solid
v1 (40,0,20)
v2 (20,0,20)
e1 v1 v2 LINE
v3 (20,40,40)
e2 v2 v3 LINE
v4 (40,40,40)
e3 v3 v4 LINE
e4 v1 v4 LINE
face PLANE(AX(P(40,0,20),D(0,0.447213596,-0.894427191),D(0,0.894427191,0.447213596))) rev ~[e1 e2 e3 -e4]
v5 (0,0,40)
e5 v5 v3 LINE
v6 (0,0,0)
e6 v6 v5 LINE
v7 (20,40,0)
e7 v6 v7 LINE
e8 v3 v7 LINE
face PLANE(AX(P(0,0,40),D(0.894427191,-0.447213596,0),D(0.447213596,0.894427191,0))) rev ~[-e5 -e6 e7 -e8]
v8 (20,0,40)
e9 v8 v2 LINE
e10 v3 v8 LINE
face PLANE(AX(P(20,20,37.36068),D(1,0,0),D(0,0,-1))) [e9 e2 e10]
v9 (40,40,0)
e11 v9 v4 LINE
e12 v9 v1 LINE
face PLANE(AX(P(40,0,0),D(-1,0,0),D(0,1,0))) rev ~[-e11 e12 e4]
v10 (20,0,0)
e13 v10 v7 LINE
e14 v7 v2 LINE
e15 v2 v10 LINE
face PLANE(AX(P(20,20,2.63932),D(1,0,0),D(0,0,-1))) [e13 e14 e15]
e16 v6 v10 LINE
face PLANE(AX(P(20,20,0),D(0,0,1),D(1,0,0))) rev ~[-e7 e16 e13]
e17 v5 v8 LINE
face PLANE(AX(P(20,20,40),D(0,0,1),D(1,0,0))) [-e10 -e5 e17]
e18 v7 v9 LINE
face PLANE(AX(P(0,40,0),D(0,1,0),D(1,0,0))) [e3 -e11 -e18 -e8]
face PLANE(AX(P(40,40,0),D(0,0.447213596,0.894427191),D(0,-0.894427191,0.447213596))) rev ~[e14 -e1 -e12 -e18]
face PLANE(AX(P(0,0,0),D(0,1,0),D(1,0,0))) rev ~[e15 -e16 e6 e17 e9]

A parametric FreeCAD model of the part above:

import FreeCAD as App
import Part
import Sketcher
from FreeCAD import Vector

doc = App.newDocument("Part")
body = doc.addObject("PartDesign::Body", "Body")

sketch1 = body.newObject("Sketcher::SketchObject", "Sketch")
sketch1.AttachmentSupport = (doc.getObject("XY_Plane"), [""])
sketch1.MapMode = "FlatFace"
sketch1.addGeometry([
    Part.LineSegment(Vector(0, 40, 0), Vector(0, 0, 0)),
    Part.LineSegment(Vector(0, 0, 0), Vector(40, 0, 0)),
    Part.LineSegment(Vector(40, 0, 0), Vector(40, 40, 0)),
    Part.LineSegment(Vector(40, 40, 0), Vector(0, 40, 0)),
], False)
sketch1.addConstraint([
    Sketcher.Constraint("Coincident", 0, 2, 1, 1),
    Sketcher.Constraint("Coincident", 1, 2, 2, 1),
    Sketcher.Constraint("Coincident", 2, 2, 3, 1),
    Sketcher.Constraint("Coincident", 3, 2, 0, 1),
    Sketcher.Constraint("Vertical", 0),
    Sketcher.Constraint("Horizontal", 1),
    Sketcher.Constraint("Vertical", 2),
    Sketcher.Constraint("Horizontal", 3),
    Sketcher.Constraint("Coincident", 0, 2, -1, 1),
    Sketcher.Constraint("Equal", 3, 0),
    Sketcher.Constraint("DistanceX", 1, 1, 1, 2, 40.0),
])
pad1 = body.newObject("PartDesign::Pad", "Pad")
pad1.Profile = sketch1
pad1.Length = 40

sketch2 = body.newObject("Sketcher::SketchObject", "Sketch001")
sketch2.AttachmentSupport = (doc.getObject("XY_Plane"), [""])
sketch2.MapMode = "FlatFace"
sketch2.AttachmentOffset = App.Placement(Vector(0, 0, 40), App.Rotation())
sketch2.addGeometry([
    Part.LineSegment(Vector(0, 0, 0), Vector(20, 40, 0)),
    Part.LineSegment(Vector(20, 40, 0), Vector(0, 40, 0)),
    Part.LineSegment(Vector(0, 40, 0), Vector(0, 0, 0)),
], False)
sketch2.addConstraint([
    Sketcher.Constraint("Coincident", 0, 2, 1, 1),
    Sketcher.Constraint("Coincident", 1, 2, 2, 1),
    Sketcher.Constraint("Coincident", 2, 2, 0, 1),
    Sketcher.Constraint("Horizontal", 1),
    Sketcher.Constraint("Vertical", 2),
    Sketcher.Constraint("Coincident", 2, 2, -1, 1),
    Sketcher.Constraint("DistanceX", 1, 2, 1, 1, 20.0),
    Sketcher.Constraint("DistanceY", 2, 2, 2, 1, 40.0),
])
pocket1 = body.newObject("PartDesign::Pocket", "Pocket")
pocket1.Profile = sketch2
pocket1.Length = 40

sketch3 = body.newObject("Sketcher::SketchObject", "Sketch002")
sketch3.AttachmentSupport = (doc.getObject("YZ_Plane"), [""])
sketch3.MapMode = "FlatFace"
sketch3.AttachmentOffset = App.Placement(Vector(0, 0, 40), App.Rotation())
sketch3.addGeometry([
    Part.LineSegment(Vector(40, 40, 0), Vector(0, 40, 0)),
    Part.LineSegment(Vector(0, 40, 0), Vector(0, 20, 0)),
    Part.LineSegment(Vector(0, 20, 0), Vector(40, 40, 0)),
    Part.LineSegment(Vector(0, 0, 0), Vector(40, 0, 0)),
    Part.LineSegment(Vector(40, 0, 0), Vector(0, 20, 0)),
    Part.LineSegment(Vector(0, 20, 0), Vector(0, 0, 0)),
], False)
sketch3.addConstraint([
    Sketcher.Constraint("Coincident", 0, 2, 1, 1),
    Sketcher.Constraint("Coincident", 1, 2, 2, 1),
    Sketcher.Constraint("Coincident", 2, 2, 0, 1),
    Sketcher.Constraint("Coincident", 3, 2, 4, 1),
    Sketcher.Constraint("Coincident", 4, 2, 5, 1),
    Sketcher.Constraint("Coincident", 5, 2, 3, 1),
    Sketcher.Constraint("Horizontal", 0),
    Sketcher.Constraint("Vertical", 1),
    Sketcher.Constraint("Horizontal", 3),
    Sketcher.Constraint("Vertical", 5),
    Sketcher.Constraint("Coincident", 5, 2, -1, 1),
    Sketcher.Constraint("Coincident", 4, 2, 1, 2),
    Sketcher.Constraint("Vertical", 2, 2, 3, 2),
    Sketcher.Constraint("Equal", 1, 5),
    Sketcher.Constraint("DistanceX", 0, 2, 0, 1, 40.0),
    Sketcher.Constraint("DistanceY", 1, 2, 1, 1, 20.0),
])
pocket2 = body.newObject("PartDesign::Pocket", "Pocket001")
pocket2.Profile = sketch3
pocket2.Length = 20

doc.recompute()
